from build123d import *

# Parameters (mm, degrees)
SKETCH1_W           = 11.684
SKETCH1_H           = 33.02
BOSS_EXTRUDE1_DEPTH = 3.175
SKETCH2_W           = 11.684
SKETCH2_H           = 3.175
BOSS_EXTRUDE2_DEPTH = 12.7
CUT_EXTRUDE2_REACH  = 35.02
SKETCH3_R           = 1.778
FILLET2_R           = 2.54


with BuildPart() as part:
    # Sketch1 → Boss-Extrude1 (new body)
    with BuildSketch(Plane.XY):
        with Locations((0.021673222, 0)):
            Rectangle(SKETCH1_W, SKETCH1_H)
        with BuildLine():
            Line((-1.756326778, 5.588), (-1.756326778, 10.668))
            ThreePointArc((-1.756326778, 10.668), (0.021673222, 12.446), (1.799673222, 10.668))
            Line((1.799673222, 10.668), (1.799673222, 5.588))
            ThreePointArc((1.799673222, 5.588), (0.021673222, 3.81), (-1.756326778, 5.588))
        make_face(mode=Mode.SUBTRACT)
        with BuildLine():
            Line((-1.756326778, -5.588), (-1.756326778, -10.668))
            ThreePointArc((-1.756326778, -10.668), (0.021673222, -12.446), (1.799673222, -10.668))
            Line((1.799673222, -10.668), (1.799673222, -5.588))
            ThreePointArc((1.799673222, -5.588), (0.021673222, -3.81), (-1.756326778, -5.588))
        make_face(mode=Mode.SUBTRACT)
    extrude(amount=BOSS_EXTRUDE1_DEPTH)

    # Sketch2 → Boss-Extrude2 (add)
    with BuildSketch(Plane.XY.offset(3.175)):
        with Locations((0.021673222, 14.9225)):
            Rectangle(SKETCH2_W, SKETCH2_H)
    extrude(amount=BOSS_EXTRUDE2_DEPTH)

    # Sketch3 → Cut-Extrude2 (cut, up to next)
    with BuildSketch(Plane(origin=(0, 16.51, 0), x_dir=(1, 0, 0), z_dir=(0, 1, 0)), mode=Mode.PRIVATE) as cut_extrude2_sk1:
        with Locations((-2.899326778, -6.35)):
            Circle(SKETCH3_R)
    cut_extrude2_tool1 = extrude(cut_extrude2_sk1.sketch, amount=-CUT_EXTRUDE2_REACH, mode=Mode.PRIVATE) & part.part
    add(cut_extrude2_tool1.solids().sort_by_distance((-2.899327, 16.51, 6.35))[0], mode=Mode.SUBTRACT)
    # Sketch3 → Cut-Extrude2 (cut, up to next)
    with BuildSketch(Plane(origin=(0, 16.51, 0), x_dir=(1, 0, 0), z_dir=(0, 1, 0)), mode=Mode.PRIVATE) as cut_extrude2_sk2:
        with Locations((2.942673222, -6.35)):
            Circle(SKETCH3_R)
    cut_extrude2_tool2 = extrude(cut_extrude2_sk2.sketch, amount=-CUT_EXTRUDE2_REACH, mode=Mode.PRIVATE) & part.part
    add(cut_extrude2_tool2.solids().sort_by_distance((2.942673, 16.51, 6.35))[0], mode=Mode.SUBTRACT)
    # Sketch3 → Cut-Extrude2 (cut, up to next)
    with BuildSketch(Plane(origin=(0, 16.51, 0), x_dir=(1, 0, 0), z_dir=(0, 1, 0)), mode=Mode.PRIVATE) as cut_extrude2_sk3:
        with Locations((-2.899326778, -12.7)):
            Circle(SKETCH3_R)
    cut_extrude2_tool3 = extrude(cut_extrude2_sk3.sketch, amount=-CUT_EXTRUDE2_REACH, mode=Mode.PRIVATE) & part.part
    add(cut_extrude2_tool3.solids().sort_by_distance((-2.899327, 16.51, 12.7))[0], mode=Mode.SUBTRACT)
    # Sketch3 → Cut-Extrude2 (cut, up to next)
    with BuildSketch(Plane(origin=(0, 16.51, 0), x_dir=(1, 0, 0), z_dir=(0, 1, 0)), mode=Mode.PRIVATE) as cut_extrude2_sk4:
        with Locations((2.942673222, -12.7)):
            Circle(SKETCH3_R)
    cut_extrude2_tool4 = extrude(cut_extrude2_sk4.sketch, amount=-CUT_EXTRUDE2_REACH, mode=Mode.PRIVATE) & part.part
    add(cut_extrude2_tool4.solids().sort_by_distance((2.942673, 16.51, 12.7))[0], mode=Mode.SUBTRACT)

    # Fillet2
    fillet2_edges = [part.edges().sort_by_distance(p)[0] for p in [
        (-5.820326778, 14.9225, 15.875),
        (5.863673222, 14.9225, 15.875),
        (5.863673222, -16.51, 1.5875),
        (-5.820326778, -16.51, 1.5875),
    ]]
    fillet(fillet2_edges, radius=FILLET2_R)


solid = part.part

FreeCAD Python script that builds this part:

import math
import FreeCAD as App
import Part
import Sketcher

V = App.Vector
Q = App.Units.Quantity


def edges_at(feature, points):
    """Names of the edges that pass closest to the given points."""
    edges = feature.Shape.Edges
    near = lambda p: min(range(len(edges)), key=lambda i: edges[i].distToShape(Part.Vertex(*p))[0])
    return sorted({f"Edge{near(p) + 1}" for p in points})

doc = App.newDocument("Part")
body = doc.addObject("PartDesign::Body", "Body")

sketch1 = body.newObject("Sketcher::SketchObject", "Sketch")
sketch1.AttachmentSupport = (doc.getObject("XY_Plane"), [""])
sketch1.MapMode = "FlatFace"
sketch1.addGeometry([
    Part.LineSegment(V(-5.820327, 16.51, 0), V(-5.820327, -16.51, 0)),
    Part.LineSegment(V(-5.820327, -16.51, 0), V(5.863673, -16.51, 0)),
    Part.LineSegment(V(5.863673, -16.51, 0), V(5.863673, 16.51, 0)),
    Part.LineSegment(V(5.863673, 16.51, 0), V(-5.820327, 16.51, 0)),
    Part.LineSegment(V(-1.756327, -10.668, 0), V(-1.756327, -5.588, 0)),
    Part.ArcOfCircle(Part.Circle(V(0.021673, -5.588, 0), V(0, 0, 1), 1.778), math.radians(0), math.radians(180)),
    Part.LineSegment(V(1.799673, -5.588, 0), V(1.799673, -10.668, 0)),
    Part.ArcOfCircle(Part.Circle(V(0.021673, -10.668, 0), V(0, 0, 1), 1.778), math.radians(180), math.radians(360)),
    Part.ArcOfCircle(Part.Circle(V(0.021673, 5.588, 0), V(0, 0, 1), 1.778), math.radians(180), math.radians(360)),
    Part.LineSegment(V(-1.756327, 5.588, 0), V(-1.756327, 10.668, 0)),
    Part.ArcOfCircle(Part.Circle(V(0.021673, 10.668, 0), V(0, 0, 1), 1.778), math.radians(0), math.radians(180)),
    Part.LineSegment(V(1.799673, 10.668, 0), V(1.799673, 5.588, 0)),
], False)
sketch1.addConstraint([
    Sketcher.Constraint("Coincident", 0, 2, 1, 1),
    Sketcher.Constraint("Coincident", 1, 2, 2, 1),
    Sketcher.Constraint("Coincident", 2, 2, 3, 1),
    Sketcher.Constraint("Coincident", 3, 2, 0, 1),
    Sketcher.Constraint("Tangent", 4, 2, 5, 2),
    Sketcher.Constraint("Tangent", 5, 1, 6, 1),
    Sketcher.Constraint("Tangent", 6, 2, 7, 2),
    Sketcher.Constraint("Tangent", 7, 1, 4, 1),
    Sketcher.Constraint("Tangent", 8, 1, 9, 1),
    Sketcher.Constraint("Tangent", 9, 2, 10, 2),
    Sketcher.Constraint("Tangent", 10, 1, 11, 1),
    Sketcher.Constraint("Tangent", 11, 2, 8, 2),
    Sketcher.Constraint("Vertical", 0),
    Sketcher.Constraint("Horizontal", 1),
    Sketcher.Constraint("Vertical", 2),
    Sketcher.Constraint("Horizontal", 3),
    Sketcher.Constraint("Vertical", 4),
    Sketcher.Constraint("Vertical", 6),
    Sketcher.Constraint("Vertical", 9),
    Sketcher.Constraint("Vertical", 11),
    Sketcher.Constraint("Equal", 7, 8),
    Sketcher.Constraint("Symmetric", 5, 3, 8, 3, -1),
    Sketcher.Constraint("Equal", 6, 9),
    Sketcher.Constraint("Radius", 5, Q("0.07 in")),
    Sketcher.Constraint("DistanceY", 0, 2, 0, 1, Q("1.3 in")),
    Sketcher.Constraint("DistanceY", 4, 1, 4, 2, Q("0.2 in")),
    Sketcher.Constraint("DistanceX", 1, 1, 1, 2, Q("0.46 in")),
    Sketcher.Constraint("DistanceX", 4, 2, 1, 2, Q("0.3 in")),
    Sketcher.Constraint("DistanceY", 5, 3, -1, 1, Q("0.22 in")),
    Sketcher.Constraint("DistanceY", 0, 2, -1, 1, Q("0.65 in")),
    Sketcher.Constraint("DistanceX", -1, 1, 5, 3, Q("0.021673 mm")),
])
pad1 = body.newObject("PartDesign::Pad", "Pad")
pad1.Profile = sketch1
pad1.Length = Q("0.125 in")

sketch2 = body.newObject("Sketcher::SketchObject", "Sketch001")
sketch2.AttachmentSupport = (doc.getObject("XY_Plane"), [""])
sketch2.MapMode = "FlatFace"
sketch2.AttachmentOffset = App.Placement(V(0, 0, 0.125 * 25.4), App.Rotation())
sketch2.addGeometry([
    Part.LineSegment(V(-5.820327, 16.51, 0), V(-5.820327, 13.335, 0)),
    Part.LineSegment(V(-5.820327, 13.335, 0), V(5.863673, 13.335, 0)),
    Part.LineSegment(V(5.863673, 13.335, 0), V(5.863673, 16.51, 0)),
    Part.LineSegment(V(5.863673, 16.51, 0), V(-5.820327, 16.51, 0)),
], False)
sketch2.addConstraint([
    Sketcher.Constraint("Coincident", 0, 2, 1, 1),
    Sketcher.Constraint("Coincident", 1, 2, 2, 1),
    Sketcher.Constraint("Coincident", 2, 2, 3, 1),
    Sketcher.Constraint("Coincident", 3, 2, 0, 1),
    Sketcher.Constraint("Vertical", 0),
    Sketcher.Constraint("Horizontal", 1),
    Sketcher.Constraint("Vertical", 2),
    Sketcher.Constraint("Horizontal", 3),
    Sketcher.Constraint("DistanceX", 1, 1, 1, 2, Q("0.46 in")),
    Sketcher.Constraint("DistanceY", 0, 2, 0, 1, Q("0.125 in")),
    Sketcher.Constraint("DistanceY", -1, 1, 2, 2, Q("0.65 in")),
    Sketcher.Constraint("DistanceX", 0, 2, -1, 1, Q("5.820327 mm")),
])
pad2 = body.newObject("PartDesign::Pad", "Pad001")
pad2.Profile = sketch2
pad2.Length = Q("0.5 in")

sketch3 = body.newObject("Sketcher::SketchObject", "Sketch002")
sketch3.AttachmentSupport = (doc.getObject("XZ_Plane"), [""])
sketch3.MapMode = "FlatFace"
sketch3.AttachmentOffset = App.Placement(V(0, 0, -0.65 * 25.4), App.Rotation())
sketch3.addGeometry(Part.Circle(V(-2.899327, 6.35, 0), V(0, 0, 1), 1.778), False)
sketch3.addConstraint([
    Sketcher.Constraint("Diameter", 0, Q("0.14 in")),
    Sketcher.Constraint("DistanceY", -1, 1, 0, 3, Q("0.25 in")),
    Sketcher.Constraint("DistanceX", 0, 3, -1, 1, Q("2.899327 mm")),
])
pocket1 = body.newObject("PartDesign::Pocket", "Pocket")
pocket1.Profile = sketch3
pocket1.Type = "UpToFirst"
pocket1.Reversed = True

sketch4 = body.newObject("Sketcher::SketchObject", "Sketch003")
sketch4.AttachmentSupport = (doc.getObject("XZ_Plane"), [""])
sketch4.MapMode = "FlatFace"
sketch4.AttachmentOffset = App.Placement(V(0, 0, -0.65 * 25.4), App.Rotation())
sketch4.addGeometry(Part.Circle(V(2.942673, 6.35, 0), V(0, 0, 1), 1.778), False)
sketch4.addConstraint([
    Sketcher.Constraint("Diameter", 0, Q("0.14 in")),
    Sketcher.Constraint("DistanceY", -1, 1, 0, 3, Q("0.25 in")),
    Sketcher.Constraint("DistanceX", -1, 1, 0, 3, Q("2.942673 mm")),
])
pocket2 = body.newObject("PartDesign::Pocket", "Pocket001")
pocket2.Profile = sketch4
pocket2.Type = "UpToFirst"
pocket2.Reversed = True

sketch5 = body.newObject("Sketcher::SketchObject", "Sketch004")
sketch5.AttachmentSupport = (doc.getObject("XZ_Plane"), [""])
sketch5.MapMode = "FlatFace"
sketch5.AttachmentOffset = App.Placement(V(0, 0, -0.65 * 25.4), App.Rotation())
sketch5.addGeometry(Part.Circle(V(-2.899327, 12.7, 0), V(0, 0, 1), 1.778), False)
sketch5.addConstraint([
    Sketcher.Constraint("Diameter", 0, Q("0.14 in")),
    Sketcher.Constraint("DistanceY", -1, 1, 0, 3, Q("0.5 in")),
    Sketcher.Constraint("DistanceX", 0, 3, -1, 1, Q("2.899327 mm")),
])
pocket3 = body.newObject("PartDesign::Pocket", "Pocket002")
pocket3.Profile = sketch5
pocket3.Type = "UpToFirst"
pocket3.Reversed = True

sketch6 = body.newObject("Sketcher::SketchObject", "Sketch005")
sketch6.AttachmentSupport = (doc.getObject("XZ_Plane"), [""])
sketch6.MapMode = "FlatFace"
sketch6.AttachmentOffset = App.Placement(V(0, 0, -0.65 * 25.4), App.Rotation())
sketch6.addGeometry(Part.Circle(V(2.942673, 12.7, 0), V(0, 0, 1), 1.778), False)
sketch6.addConstraint([
    Sketcher.Constraint("Diameter", 0, Q("0.14 in")),
    Sketcher.Constraint("DistanceY", -1, 1, 0, 3, Q("0.5 in")),
    Sketcher.Constraint("DistanceX", -1, 1, 0, 3, Q("2.942673 mm")),
])
pocket4 = body.newObject("PartDesign::Pocket", "Pocket003")
pocket4.Profile = sketch6
pocket4.Type = "UpToFirst"
pocket4.Reversed = True
doc.recompute()

fillet = body.newObject("PartDesign::Fillet", "Fillet")
fillet.Base = (pocket4, edges_at(pocket4, [
    (-5.82, 14.922, 15.875),
    (5.864, 14.922, 15.875),
    (5.864, -16.51, 1.587),
    (-5.82, -16.51, 1.587),
]))
fillet.Radius = Q("0.1 in")

doc.recompute()
